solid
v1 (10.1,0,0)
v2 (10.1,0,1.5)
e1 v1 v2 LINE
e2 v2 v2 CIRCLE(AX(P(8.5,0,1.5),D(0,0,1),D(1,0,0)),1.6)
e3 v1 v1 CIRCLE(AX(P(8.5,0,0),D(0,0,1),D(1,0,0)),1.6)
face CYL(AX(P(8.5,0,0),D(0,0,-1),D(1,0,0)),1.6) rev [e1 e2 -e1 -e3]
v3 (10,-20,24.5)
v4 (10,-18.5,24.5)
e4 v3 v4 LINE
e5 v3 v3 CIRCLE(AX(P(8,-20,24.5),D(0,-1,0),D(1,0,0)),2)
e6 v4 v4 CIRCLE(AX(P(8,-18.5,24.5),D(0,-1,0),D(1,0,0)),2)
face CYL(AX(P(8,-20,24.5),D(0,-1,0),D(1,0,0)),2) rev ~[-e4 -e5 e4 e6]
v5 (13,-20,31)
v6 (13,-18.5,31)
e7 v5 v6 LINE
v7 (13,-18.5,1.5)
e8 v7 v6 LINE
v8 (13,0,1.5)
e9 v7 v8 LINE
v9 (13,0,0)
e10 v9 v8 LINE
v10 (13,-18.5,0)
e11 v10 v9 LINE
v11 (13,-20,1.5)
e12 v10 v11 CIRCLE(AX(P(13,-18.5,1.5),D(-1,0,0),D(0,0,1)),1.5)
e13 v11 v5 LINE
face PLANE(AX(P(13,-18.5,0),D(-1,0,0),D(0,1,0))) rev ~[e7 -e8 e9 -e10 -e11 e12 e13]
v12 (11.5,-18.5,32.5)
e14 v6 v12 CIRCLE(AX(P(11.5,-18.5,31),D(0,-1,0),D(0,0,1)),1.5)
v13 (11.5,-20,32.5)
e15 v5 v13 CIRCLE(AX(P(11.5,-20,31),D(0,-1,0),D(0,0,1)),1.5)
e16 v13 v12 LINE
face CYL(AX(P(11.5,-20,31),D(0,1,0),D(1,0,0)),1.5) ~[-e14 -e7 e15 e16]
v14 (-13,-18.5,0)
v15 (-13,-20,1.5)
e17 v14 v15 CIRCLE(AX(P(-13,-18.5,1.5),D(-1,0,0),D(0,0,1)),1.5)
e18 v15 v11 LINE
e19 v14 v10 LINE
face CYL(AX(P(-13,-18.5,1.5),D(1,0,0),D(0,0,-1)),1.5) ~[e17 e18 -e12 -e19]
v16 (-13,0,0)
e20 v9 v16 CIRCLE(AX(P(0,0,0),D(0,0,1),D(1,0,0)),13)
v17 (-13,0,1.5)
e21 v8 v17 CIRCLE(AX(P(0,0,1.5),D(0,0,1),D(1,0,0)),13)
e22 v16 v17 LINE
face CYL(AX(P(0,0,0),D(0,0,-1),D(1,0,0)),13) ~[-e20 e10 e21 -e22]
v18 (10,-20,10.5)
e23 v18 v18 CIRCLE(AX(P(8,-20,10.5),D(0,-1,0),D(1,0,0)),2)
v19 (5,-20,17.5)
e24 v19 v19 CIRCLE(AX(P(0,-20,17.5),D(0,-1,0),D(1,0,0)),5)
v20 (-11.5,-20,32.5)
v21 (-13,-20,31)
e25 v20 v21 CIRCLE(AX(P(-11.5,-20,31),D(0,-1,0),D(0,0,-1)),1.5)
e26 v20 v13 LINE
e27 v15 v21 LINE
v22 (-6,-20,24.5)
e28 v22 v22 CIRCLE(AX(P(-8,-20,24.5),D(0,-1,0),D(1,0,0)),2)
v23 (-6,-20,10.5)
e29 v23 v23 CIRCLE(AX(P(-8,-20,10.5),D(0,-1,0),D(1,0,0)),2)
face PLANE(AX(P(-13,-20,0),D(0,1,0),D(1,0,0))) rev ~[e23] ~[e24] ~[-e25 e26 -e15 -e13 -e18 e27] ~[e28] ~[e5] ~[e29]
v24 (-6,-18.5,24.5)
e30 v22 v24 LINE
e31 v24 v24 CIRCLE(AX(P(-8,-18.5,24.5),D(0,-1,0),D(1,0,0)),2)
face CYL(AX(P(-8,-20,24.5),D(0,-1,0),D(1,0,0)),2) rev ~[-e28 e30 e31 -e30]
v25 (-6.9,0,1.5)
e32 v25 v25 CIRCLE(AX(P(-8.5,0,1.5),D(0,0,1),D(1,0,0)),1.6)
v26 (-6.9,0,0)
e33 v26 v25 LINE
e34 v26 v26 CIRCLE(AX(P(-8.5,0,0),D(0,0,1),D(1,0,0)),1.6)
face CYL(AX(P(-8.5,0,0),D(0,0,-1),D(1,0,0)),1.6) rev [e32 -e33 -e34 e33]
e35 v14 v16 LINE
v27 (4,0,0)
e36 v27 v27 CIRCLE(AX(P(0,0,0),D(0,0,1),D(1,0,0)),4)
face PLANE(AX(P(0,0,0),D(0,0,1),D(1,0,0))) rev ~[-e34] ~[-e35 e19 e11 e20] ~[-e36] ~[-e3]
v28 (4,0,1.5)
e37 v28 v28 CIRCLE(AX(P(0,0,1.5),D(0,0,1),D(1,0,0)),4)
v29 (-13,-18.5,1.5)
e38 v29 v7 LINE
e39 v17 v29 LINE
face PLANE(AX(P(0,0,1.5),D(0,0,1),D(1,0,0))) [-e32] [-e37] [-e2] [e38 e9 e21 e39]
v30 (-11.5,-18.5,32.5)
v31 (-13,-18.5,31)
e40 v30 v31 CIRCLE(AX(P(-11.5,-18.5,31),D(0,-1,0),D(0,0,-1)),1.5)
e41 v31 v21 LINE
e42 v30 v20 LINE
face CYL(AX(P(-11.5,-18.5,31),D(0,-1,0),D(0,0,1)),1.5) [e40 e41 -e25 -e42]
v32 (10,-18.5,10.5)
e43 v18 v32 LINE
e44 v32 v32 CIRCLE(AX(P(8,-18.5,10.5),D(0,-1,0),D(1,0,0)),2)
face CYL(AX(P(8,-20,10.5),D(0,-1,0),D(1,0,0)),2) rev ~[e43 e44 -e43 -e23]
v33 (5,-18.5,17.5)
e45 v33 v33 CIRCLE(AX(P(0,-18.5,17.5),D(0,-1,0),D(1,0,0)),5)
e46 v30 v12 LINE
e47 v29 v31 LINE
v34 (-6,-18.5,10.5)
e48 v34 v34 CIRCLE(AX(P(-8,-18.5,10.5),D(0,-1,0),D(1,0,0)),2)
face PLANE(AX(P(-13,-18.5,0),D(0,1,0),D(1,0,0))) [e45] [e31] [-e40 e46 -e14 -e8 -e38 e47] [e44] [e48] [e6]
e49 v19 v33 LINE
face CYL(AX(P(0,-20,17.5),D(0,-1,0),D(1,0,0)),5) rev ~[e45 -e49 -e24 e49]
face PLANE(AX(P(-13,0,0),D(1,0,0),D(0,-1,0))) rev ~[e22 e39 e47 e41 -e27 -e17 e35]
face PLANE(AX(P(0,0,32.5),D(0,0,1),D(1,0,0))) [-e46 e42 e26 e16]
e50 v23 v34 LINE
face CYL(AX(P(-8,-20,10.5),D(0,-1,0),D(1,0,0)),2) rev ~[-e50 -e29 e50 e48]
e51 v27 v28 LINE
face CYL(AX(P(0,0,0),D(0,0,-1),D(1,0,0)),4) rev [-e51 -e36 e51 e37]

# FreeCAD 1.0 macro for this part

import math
import FreeCAD as App
import Part
import Sketcher

V = App.Vector


def edges_at(feature, points):
    """Names of the edges that pass closest to the given points."""
    edges = feature.Shape.Edges
    near = lambda p: min(range(len(edges)), key=lambda i: edges[i].distToShape(Part.Vertex(*p))[0])
    return sorted({f"Edge{near(p) + 1}" for p in points})

doc = App.newDocument("Part")
body = doc.addObject("PartDesign::Body", "Body")

sketch1 = doc.addObject("Sketcher::SketchObject", "Sketch")
body.addObject(sketch1)
sketch1.AttachmentSupport = (doc.XY_Plane, [""])
sketch1.MapMode = "FlatFace"
sketch1.addGeometry(Part.LineSegment(V(13, -18.5, 0), V(13, 0, 0)), False)
sketch1.addGeometry(Part.ArcOfCircle(Part.Circle(V(0, 0, 0), V(0, 0, 1), 13), math.radians(0), math.radians(180)), False)
sketch1.addGeometry(Part.LineSegment(V(-13, 0, 0), V(-13, -18.5, 0)), False)
sketch1.addGeometry(Part.LineSegment(V(-13, -18.5, 0), V(13, -18.5, 0)), False)
sketch1.addGeometry(Part.Circle(V(-8.5, 0, 0), V(0, 0, 1), 1.6), False)
sketch1.addGeometry(Part.Circle(V(0, 0, 0), V(0, 0, 1), 4), False)
sketch1.addGeometry(Part.Circle(V(8.5, 0, 0), V(0, 0, 1), 1.6), False)
sketch1.addConstraint(Sketcher.Constraint("Tangent", 0, 2, 1, 1))
sketch1.addConstraint(Sketcher.Constraint("Tangent", 1, 2, 2, 1))
sketch1.addConstraint(Sketcher.Constraint("Coincident", 2, 2, 3, 1))
sketch1.addConstraint(Sketcher.Constraint("Coincident", 3, 2, 0, 1))
sketch1.addConstraint(Sketcher.Constraint("Vertical", 0))
sketch1.addConstraint(Sketcher.Constraint("Vertical", 2))
sketch1.addConstraint(Sketcher.Constraint("Horizontal", 3))
sketch1.addConstraint(Sketcher.Constraint("Coincident", 1, 3, -1, 1))
sketch1.addConstraint(Sketcher.Constraint("Coincident", 5, 3, -1, 1))
sketch1.addConstraint(Sketcher.Constraint("Equal", 4, 6))
sketch1.addConstraint(Sketcher.Constraint("Symmetric", 4, 3, 6, 3, -1, 1))
sketch1.addConstraint(Sketcher.Constraint("PointOnObject", 4, 3, -1))
sketch1.addConstraint(Sketcher.Constraint("Diameter", 5, 8.0))
sketch1.addConstraint(Sketcher.Constraint("Radius", 1, 13.0))
sketch1.addConstraint(Sketcher.Constraint("Diameter", 4, 3.2))
sketch1.addConstraint(Sketcher.Constraint("DistanceX", 4, 3, -1, 1, 8.5))
sketch1.addConstraint(Sketcher.Constraint("DistanceY", 0, 1, 0, 2, 18.5))
pad1 = doc.addObject("PartDesign::Pad", "Pad")
body.addObject(pad1)
pad1.Profile = sketch1
pad1.Length = 1.5

sketch2 = doc.addObject("Sketcher::SketchObject", "Sketch001")
body.addObject(sketch2)
sketch2.AttachmentSupport = (doc.XY_Plane, [""])
sketch2.MapMode = "FlatFace"
sketch2.addGeometry(Part.LineSegment(V(13, -20, 0), V(13, -18.5, 0)), False)
sketch2.addGeometry(Part.LineSegment(V(13, -18.5, 0), V(-13, -18.5, 0)), False)
sketch2.addGeometry(Part.LineSegment(V(-13, -18.5, 0), V(-13, -20, 0)), False)
sketch2.addGeometry(Part.LineSegment(V(-13, -20, 0), V(13, -20, 0)), False)
sketch2.addConstraint(Sketcher.Constraint("Coincident", 0, 2, 1, 1))
sketch2.addConstraint(Sketcher.Constraint("Coincident", 1, 2, 2, 1))
sketch2.addConstraint(Sketcher.Constraint("Coincident", 2, 2, 3, 1))
sketch2.addConstraint(Sketcher.Constraint("Coincident", 3, 2, 0, 1))
sketch2.addConstraint(Sketcher.Constraint("Vertical", 0))
sketch2.addConstraint(Sketcher.Constraint("Horizontal", 1))
sketch2.addConstraint(Sketcher.Constraint("Vertical", 2))
sketch2.addConstraint(Sketcher.Constraint("Horizontal", 3))
sketch2.addConstraint(Sketcher.Constraint("DistanceY", 0, 1, 0, 2, 1.5))
sketch2.addConstraint(Sketcher.Constraint("DistanceX", -1, 1, 0, 2, 13.0))
sketch2.addConstraint(Sketcher.Constraint("DistanceX", 1, 2, -1, 1, 13.0))
sketch2.addConstraint(Sketcher.Constraint("DistanceY", 2, 2, -1, 1, 20.0))
pad2 = doc.addObject("PartDesign::Pad", "Pad001")
body.addObject(pad2)
pad2.Profile = sketch2
pad2.Length = 32.5
doc.recompute()

fillet = doc.addObject("PartDesign::Fillet", "Fillet")
body.addObject(fillet)
fillet.Base = (pad2, edges_at(pad2, [(-13, -19.25, 32.5), (13, -19.25, 32.5), (0, -20, 0)]))
fillet.Radius = 1.5

sketch3 = doc.addObject("Sketcher::SketchObject", "Sketch002")
body.addObject(sketch3)
sketch3.AttachmentSupport = (doc.XZ_Plane, [""])
sketch3.MapMode = "FlatFace"
sketch3.AttachmentOffset = App.Placement(V(0, 0, 20), App.Rotation())
sketch3.addGeometry(Part.Circle(V(0, 17.5, 0), V(0, 0, 1), 5), False)
sketch3.addGeometry(Part.Circle(V(8, 24.5, 0), V(0, 0, 1), 2), False)
sketch3.addGeometry(Part.Circle(V(8, 10.5, 0), V(0, 0, 1), 2), False)
sketch3.addGeometry(Part.Circle(V(-8, 24.5, 0), V(0, 0, 1), 2), False)
sketch3.addGeometry(Part.Circle(V(-8, 10.5, 0), V(0, 0, 1), 2), False)
sketch3.addConstraint(Sketcher.Constraint("Equal", 1, 2))
sketch3.addConstraint(Sketcher.Constraint("Equal", 2, 3))
sketch3.addConstraint(Sketcher.Constraint("Equal", 3, 4))
sketch3.addConstraint(Sketcher.Constraint("Symmetric", 1, 3, 3, 3, -2))
sketch3.addConstraint(Sketcher.Constraint("Symmetric", 2, 3, 4, 3, -2))
sketch3.addConstraint(Sketcher.Constraint("PointOnObject", 0, 3, -2))
sketch3.addConstraint(Sketcher.Constraint("Vertical", 1, 3, 2, 3))
sketch3.addConstraint(Sketcher.Constraint("Diameter", 0, 10.0))
sketch3.addConstraint(Sketcher.Constraint("Diameter", 1, 4.0))
sketch3.addConstraint(Sketcher.Constraint("DistanceX", -1, 1, 1, 3, 8.0))
sketch3.addConstraint(Sketcher.Constraint("DistanceY", 0, 3, 1, 3, 7.0))
sketch3.addConstraint(Sketcher.Constraint("DistanceY", 2, 3, 0, 3, 7.0))
sketch3.addConstraint(Sketcher.Constraint("DistanceY", -1, 1, 0, 3, 17.5))
pocket1 = doc.addObject("PartDesign::Pocket", "Pocket")
body.addObject(pocket1)
pocket1.Profile = sketch3
pocket1.Type = "ThroughAll"

doc.recompute()
